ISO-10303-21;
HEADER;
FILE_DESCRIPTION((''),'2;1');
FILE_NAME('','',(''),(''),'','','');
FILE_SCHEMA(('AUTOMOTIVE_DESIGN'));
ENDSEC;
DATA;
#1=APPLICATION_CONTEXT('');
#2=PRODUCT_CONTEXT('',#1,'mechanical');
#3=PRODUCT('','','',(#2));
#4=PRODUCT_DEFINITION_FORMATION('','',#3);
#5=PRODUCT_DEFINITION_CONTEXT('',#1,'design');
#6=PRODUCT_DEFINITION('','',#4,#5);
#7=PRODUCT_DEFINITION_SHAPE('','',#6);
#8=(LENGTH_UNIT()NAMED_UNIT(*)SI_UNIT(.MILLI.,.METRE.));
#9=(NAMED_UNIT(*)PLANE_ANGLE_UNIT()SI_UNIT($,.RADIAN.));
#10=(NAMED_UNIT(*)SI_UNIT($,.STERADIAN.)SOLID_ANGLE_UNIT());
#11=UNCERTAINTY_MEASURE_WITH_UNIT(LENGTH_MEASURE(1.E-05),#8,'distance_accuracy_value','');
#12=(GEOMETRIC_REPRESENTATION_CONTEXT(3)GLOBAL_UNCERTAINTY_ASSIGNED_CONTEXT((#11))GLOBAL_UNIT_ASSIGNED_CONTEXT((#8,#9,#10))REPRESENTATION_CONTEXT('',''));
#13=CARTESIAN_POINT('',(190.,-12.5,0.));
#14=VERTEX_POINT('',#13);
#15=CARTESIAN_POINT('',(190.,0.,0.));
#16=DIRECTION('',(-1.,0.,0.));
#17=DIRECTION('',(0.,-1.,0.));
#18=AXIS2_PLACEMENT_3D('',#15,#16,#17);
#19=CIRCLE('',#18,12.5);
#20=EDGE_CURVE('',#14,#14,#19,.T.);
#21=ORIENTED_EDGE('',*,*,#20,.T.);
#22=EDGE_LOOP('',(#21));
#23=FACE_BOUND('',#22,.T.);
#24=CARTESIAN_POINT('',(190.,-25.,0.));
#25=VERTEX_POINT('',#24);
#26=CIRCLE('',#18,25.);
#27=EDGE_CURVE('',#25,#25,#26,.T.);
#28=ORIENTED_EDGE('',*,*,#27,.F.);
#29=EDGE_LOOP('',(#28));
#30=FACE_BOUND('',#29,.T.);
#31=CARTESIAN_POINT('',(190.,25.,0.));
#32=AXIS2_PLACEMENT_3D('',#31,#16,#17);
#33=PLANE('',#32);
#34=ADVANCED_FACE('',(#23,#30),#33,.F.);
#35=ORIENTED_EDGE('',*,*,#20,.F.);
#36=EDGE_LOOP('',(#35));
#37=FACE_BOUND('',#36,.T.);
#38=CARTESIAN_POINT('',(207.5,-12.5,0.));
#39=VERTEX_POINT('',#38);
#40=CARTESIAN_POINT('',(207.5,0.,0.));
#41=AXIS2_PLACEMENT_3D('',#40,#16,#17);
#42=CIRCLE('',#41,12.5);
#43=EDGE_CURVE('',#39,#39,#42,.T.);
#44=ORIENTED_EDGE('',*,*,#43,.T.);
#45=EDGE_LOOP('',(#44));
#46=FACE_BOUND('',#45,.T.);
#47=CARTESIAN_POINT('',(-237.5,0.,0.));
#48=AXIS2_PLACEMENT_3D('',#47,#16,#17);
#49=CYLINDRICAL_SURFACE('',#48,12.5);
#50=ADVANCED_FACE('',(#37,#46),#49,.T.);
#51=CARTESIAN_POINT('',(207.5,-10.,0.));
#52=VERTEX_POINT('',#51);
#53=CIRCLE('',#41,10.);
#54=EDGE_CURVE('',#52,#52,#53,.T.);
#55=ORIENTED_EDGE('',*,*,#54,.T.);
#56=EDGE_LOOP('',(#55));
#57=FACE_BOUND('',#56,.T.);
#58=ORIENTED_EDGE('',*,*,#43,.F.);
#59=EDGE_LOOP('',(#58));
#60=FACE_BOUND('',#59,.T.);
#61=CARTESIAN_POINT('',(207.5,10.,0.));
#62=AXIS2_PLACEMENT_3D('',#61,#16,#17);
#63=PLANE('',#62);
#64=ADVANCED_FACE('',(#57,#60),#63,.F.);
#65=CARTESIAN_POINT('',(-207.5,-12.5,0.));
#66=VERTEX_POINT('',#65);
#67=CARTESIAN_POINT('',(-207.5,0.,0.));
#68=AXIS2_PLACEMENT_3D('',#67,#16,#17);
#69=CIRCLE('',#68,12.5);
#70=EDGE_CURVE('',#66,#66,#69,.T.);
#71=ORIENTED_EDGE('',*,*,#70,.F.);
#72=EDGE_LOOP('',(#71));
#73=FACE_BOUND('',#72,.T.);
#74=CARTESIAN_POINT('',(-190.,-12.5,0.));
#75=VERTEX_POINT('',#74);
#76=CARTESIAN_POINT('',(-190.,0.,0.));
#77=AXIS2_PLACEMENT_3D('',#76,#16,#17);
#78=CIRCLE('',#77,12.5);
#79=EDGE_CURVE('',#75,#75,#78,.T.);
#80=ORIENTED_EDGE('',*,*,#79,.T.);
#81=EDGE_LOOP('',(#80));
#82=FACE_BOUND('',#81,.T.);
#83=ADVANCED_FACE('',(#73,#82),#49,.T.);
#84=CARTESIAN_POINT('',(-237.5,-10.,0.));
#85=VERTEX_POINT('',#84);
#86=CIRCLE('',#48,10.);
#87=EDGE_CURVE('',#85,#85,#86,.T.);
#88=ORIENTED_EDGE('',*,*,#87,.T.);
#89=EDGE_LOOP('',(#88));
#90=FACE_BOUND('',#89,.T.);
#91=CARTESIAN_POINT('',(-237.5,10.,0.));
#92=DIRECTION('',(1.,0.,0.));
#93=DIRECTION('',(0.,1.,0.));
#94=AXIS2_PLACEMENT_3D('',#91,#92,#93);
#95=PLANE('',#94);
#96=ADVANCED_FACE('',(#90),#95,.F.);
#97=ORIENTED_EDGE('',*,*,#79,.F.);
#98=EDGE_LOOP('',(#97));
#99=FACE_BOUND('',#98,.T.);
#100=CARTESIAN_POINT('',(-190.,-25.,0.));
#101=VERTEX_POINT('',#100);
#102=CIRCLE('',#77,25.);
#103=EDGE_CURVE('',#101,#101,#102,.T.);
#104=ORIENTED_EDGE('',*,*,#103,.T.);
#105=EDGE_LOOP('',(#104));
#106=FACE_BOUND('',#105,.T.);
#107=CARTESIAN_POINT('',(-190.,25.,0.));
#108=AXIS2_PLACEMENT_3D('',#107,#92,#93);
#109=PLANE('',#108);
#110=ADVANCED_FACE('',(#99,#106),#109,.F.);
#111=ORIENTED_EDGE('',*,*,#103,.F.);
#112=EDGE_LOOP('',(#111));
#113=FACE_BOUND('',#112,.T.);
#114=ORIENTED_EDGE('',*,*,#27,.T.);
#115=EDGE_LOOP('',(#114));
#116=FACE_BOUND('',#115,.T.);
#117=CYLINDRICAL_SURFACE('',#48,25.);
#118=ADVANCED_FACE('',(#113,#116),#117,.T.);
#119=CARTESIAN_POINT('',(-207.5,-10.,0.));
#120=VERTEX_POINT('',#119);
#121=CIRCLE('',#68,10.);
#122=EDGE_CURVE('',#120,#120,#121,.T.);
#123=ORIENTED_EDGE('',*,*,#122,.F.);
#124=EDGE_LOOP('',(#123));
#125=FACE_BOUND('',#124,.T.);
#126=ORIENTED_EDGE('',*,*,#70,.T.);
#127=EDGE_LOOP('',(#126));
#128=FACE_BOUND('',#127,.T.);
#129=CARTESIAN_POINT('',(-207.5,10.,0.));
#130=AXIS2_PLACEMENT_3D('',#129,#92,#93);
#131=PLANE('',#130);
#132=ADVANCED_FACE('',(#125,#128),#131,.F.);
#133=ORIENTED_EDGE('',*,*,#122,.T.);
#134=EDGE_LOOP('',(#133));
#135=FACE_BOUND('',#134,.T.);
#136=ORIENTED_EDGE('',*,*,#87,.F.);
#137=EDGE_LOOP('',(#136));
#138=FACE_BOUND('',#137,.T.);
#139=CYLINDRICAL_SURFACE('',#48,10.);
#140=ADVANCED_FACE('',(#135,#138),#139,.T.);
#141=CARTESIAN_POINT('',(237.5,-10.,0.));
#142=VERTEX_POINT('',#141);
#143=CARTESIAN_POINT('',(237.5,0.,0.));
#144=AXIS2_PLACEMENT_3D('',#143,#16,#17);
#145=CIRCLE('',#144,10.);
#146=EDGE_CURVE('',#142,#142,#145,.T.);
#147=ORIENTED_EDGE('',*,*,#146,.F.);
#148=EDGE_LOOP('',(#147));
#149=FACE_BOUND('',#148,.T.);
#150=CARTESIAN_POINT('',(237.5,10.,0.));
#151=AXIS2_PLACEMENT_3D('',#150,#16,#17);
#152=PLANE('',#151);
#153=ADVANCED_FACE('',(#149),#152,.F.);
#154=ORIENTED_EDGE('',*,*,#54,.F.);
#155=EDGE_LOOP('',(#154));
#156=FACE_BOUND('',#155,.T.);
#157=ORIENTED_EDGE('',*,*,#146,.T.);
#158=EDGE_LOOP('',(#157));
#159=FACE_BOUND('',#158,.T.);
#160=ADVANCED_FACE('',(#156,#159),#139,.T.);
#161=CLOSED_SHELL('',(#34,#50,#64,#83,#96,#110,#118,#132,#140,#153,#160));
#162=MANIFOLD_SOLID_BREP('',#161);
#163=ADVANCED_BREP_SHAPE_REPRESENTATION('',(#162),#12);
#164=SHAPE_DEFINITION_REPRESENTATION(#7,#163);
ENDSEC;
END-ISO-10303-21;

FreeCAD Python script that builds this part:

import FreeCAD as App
import Part
import Sketcher

V = App.Vector
Q = App.Units.Quantity


def add_polygon(sketch, points):
    """Adds a closed chain of lines whose ends are joined by coincident constraints."""
    first, n = sketch.GeometryCount, len(points)
    for a, b in zip(points, points[1:] + points[:1]):
        sketch.addGeometry(Part.LineSegment(App.Vector(*a, 0), App.Vector(*b, 0)), False)
    for i in range(n):
        sketch.addConstraint(Sketcher.Constraint("Coincident", first + i, 2, first + (i + 1) % n, 1))

doc = App.newDocument("Part")
body = doc.addObject("PartDesign::Body", "Body")

# Sketch on XY plane
sketch1 = body.newObject("Sketcher::SketchObject", "Sketch")
sketch1.AttachmentSupport = (doc.getObject("XY_Plane"), [""])
sketch1.MapMode = "FlatFace"
add_polygon(sketch1, [(190, 25), (-190, 25), (-190, 12.5), (-207.5, 12.5), (-207.5, 10), (-237.5, 10), (-237.5, 0), (237.5, 0), (237.5, 10), (207.5, 10), (207.5, 12.5), (190, 12.5)])  # lines 0-11
sketch1.addConstraint(Sketcher.Constraint("Horizontal", 0))
sketch1.addConstraint(Sketcher.Constraint("Vertical", 1))
sketch1.addConstraint(Sketcher.Constraint("Horizontal", 2))
sketch1.addConstraint(Sketcher.Constraint("Vertical", 3))
sketch1.addConstraint(Sketcher.Constraint("Horizontal", 4))
sketch1.addConstraint(Sketcher.Constraint("Vertical", 5))
sketch1.addConstraint(Sketcher.Constraint("Horizontal", 6))
sketch1.addConstraint(Sketcher.Constraint("Vertical", 7))
sketch1.addConstraint(Sketcher.Constraint("Horizontal", 8))
sketch1.addConstraint(Sketcher.Constraint("Vertical", 9))
sketch1.addConstraint(Sketcher.Constraint("Horizontal", 10))
sketch1.addConstraint(Sketcher.Constraint("Vertical", 11))
sketch1.addConstraint(Sketcher.Constraint("Symmetric", 5, 2, 6, 2, -1, 1))
sketch1.addConstraint(Sketcher.Constraint("Symmetric", 3, 2, 8, 2, -2))
sketch1.addConstraint(Sketcher.Constraint("Symmetric", 1, 2, 10, 2, -2))
sketch1.addConstraint(Sketcher.Constraint("DistanceX", 0, 2, 0, 1, Q("380 mm")))
sketch1.addConstraint(Sketcher.Constraint("DistanceX", 4, 2, 4, 1, Q("30 mm")))
sketch1.addConstraint(Sketcher.Constraint("DistanceX", 6, 1, 6, 2, Q("475 mm")))
sketch1.addConstraint(Sketcher.Constraint("DistanceY", 5, 2, 5, 1, Q("10 mm")))
sketch1.addConstraint(Sketcher.Constraint("DistanceY", 1, 2, 1, 1, Q("12.5 mm")))
sketch1.addConstraint(Sketcher.Constraint("DistanceY", 3, 2, 3, 1, Q("2.5 mm")))
revolution = body.newObject("PartDesign::Revolution", "Revolution")
revolution.Profile = sketch1
revolution.ReferenceAxis = (sketch1, ["H_Axis"])
revolution.Angle = 360

doc.recompute()
